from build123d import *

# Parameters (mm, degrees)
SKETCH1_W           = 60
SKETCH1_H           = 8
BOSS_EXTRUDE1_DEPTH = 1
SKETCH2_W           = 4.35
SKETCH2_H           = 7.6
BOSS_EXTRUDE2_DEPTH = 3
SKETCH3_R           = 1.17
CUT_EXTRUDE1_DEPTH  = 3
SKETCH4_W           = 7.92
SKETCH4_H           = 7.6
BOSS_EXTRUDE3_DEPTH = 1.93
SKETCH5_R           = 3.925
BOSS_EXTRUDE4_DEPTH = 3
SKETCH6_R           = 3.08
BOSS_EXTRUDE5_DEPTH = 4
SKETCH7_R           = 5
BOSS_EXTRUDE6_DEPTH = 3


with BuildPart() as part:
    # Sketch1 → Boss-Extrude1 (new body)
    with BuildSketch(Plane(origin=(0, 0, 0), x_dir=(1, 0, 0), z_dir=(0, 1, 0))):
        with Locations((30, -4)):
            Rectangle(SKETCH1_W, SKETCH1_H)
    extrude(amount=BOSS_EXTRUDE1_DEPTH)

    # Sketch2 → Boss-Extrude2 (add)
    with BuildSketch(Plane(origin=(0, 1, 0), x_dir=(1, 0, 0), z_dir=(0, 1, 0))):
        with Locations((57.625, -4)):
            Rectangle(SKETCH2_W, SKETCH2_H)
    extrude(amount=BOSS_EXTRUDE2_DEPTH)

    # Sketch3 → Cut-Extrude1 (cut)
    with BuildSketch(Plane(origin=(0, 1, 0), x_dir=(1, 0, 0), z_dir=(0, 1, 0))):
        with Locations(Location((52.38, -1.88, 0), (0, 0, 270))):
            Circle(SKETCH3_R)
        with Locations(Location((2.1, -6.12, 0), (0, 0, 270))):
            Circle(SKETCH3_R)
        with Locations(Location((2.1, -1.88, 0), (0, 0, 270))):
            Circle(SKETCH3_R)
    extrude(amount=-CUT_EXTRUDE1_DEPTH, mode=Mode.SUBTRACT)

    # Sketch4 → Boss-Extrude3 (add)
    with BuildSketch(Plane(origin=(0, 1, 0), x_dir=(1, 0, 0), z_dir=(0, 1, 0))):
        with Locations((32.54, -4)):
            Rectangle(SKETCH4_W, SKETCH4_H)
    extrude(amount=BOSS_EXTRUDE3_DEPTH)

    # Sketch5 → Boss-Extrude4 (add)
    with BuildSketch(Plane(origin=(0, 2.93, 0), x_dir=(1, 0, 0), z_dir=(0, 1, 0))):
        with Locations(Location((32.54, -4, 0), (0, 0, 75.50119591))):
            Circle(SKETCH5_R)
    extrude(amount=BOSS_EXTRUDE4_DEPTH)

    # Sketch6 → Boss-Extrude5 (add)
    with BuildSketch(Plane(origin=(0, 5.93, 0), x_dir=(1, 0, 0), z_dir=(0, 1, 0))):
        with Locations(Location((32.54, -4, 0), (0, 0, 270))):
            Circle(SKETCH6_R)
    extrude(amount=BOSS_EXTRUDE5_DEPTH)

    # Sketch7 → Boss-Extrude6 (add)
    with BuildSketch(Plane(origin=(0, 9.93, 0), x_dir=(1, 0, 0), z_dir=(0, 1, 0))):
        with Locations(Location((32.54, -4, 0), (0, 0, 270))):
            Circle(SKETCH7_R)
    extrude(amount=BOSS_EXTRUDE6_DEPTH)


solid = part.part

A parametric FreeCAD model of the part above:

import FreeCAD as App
import Part
import Sketcher

doc = App.newDocument("Part")
params = doc.addObject("Spreadsheet::Sheet", "Params")
for row, (alias, value) in enumerate([
    ("sketch1_width", "60 mm"),
    ("sketch1_height", "8 mm"),
    ("pad1_length", "1 mm"),
    ("sketch2_height", "7.6 mm"),
    ("sketch2_width", "4.35 mm"),
    ("pad2_length", "3 mm"),
    ("sketch3_diameter", "2.34 mm"),
    ("pocket1_length", "3 mm"),
    ("sketch4_height", "7.6 mm"),
    ("sketch4_width", "7.92 mm"),
    ("pad3_length", "1.93 mm"),
    ("sketch5_diameter", "7.85 mm"),
    ("pad4_length", "3 mm"),
    ("sketch6_diameter", "6.16 mm"),
    ("pad5_length", "4 mm"),
    ("sketch7_diameter", "10 mm"),
    ("pad6_length", "3 mm"),
], start=1):
    params.set(f"A{row}", alias)
    params.set(f"B{row}", "=" + value)
    params.setAlias(f"B{row}", alias)

body = doc.addObject("PartDesign::Body", "Body")

# Sketch on XZ plane
sketch1 = body.newObject("Sketcher::SketchObject", "Sketch")
sketch1.AttachmentSupport = (doc.getObject("XZ_Plane"), [""])
sketch1.MapMode = "FlatFace"
sketch1.addGeometry([
    Part.LineSegment(App.Vector(0, 0, 0), App.Vector(0, 8, 0)),
    Part.LineSegment(App.Vector(0, 8, 0), App.Vector(60, 8, 0)),
    Part.LineSegment(App.Vector(60, 8, 0), App.Vector(60, 0, 0)),
    Part.LineSegment(App.Vector(60, 0, 0), App.Vector(0, 0, 0)),
], False)
sketch1.addConstraint([
    Sketcher.Constraint("Coincident", 0, 2, 1, 1),
    Sketcher.Constraint("Coincident", 1, 2, 2, 1),
    Sketcher.Constraint("Coincident", 2, 2, 3, 1),
    Sketcher.Constraint("Coincident", 3, 2, 0, 1),
    Sketcher.Constraint("Vertical", 0),
    Sketcher.Constraint("Horizontal", 1),
    Sketcher.Constraint("Vertical", 2),
    Sketcher.Constraint("Horizontal", 3),
    Sketcher.Constraint("Coincident", 3, 2, -1, 1),
    Sketcher.Constraint("DistanceX", 1, 1, 1, 2, 60.0),
    Sketcher.Constraint("DistanceY", 0, 1, 0, 2, 8.0),
])
sketch1.setExpression("Constraints[9]", "Params.sketch1_width")
sketch1.setExpression("Constraints[10]", "Params.sketch1_height")
pad1 = body.newObject("PartDesign::Pad", "Pad")
pad1.Profile = sketch1
pad1.setExpression("Length", "Params.pad1_length")
pad1.Reversed = True

# Sketch on XZ plane
sketch2 = body.newObject("Sketcher::SketchObject", "Sketch001")
sketch2.AttachmentSupport = (doc.getObject("XZ_Plane"), [""])
sketch2.MapMode = "FlatFace"
sketch2.AttachmentOffset = App.Placement(App.Vector(0, 0, -1), App.Rotation())
sketch2.addGeometry([
    Part.LineSegment(App.Vector(55.5, 0.2, 0), App.Vector(55.5, 7.8, 0)),
    Part.LineSegment(App.Vector(55.5, 7.8, 0), App.Vector(59.8, 7.8, 0)),
    Part.LineSegment(App.Vector(59.8, 7.8, 0), App.Vector(59.8, 0.2, 0)),
    Part.LineSegment(App.Vector(59.8, 0.2, 0), App.Vector(55.5, 0.2, 0)),
], False)
sketch2.addConstraint([
    Sketcher.Constraint("Coincident", 0, 2, 1, 1),
    Sketcher.Constraint("Coincident", 1, 2, 2, 1),
    Sketcher.Constraint("Coincident", 2, 2, 3, 1),
    Sketcher.Constraint("Coincident", 3, 2, 0, 1),
    Sketcher.Constraint("Vertical", 0),
    Sketcher.Constraint("Horizontal", 1),
    Sketcher.Constraint("Vertical", 2),
    Sketcher.Constraint("Horizontal", 3),
    Sketcher.Constraint("DistanceY", 0, 1, 0, 2, 7.6),
    Sketcher.Constraint("DistanceX", 1, 1, 1, 2, 4.35),
    Sketcher.Constraint("DistanceY", -1, 1, 0, 2, 7.8),
    Sketcher.Constraint("DistanceX", -1, 1, 1, 2, 59.8),
])
sketch2.setExpression("Constraints[8]", "Params.sketch2_height")
sketch2.setExpression("Constraints[9]", "Params.sketch2_width")
pad2 = body.newObject("PartDesign::Pad", "Pad001")
pad2.Profile = sketch2
pad2.setExpression("Length", "Params.pad2_length")
pad2.Reversed = True

# Sketch on XZ plane
sketch3 = body.newObject("Sketcher::SketchObject", "Sketch002")
sketch3.AttachmentSupport = (doc.getObject("XZ_Plane"), [""])
sketch3.MapMode = "FlatFace"
sketch3.AttachmentOffset = App.Placement(App.Vector(0, 0, -1), App.Rotation())
sketch3.addGeometry([
    Part.Circle(App.Vector(52.4, 1.9, 0), App.Vector(0, 0, 1), 1.2),
    Part.Circle(App.Vector(2.1, 6.1, 0), App.Vector(0, 0, 1), 1.2),
    Part.Circle(App.Vector(2.1, 1.9, 0), App.Vector(0, 0, 1), 1.2),
], False)
sketch3.addConstraint([
    Sketcher.Constraint("Equal", 0, 1),
    Sketcher.Constraint("Equal", 1, 2),
    Sketcher.Constraint("Horizontal", 0, 3, 2, 3),
    Sketcher.Constraint("Vertical", 1, 3, 2, 3),
    Sketcher.Constraint("Diameter", 0, 2.34),
    Sketcher.Constraint("DistanceX", -1, 1, 1, 3, 2.1),
    Sketcher.Constraint("DistanceX", -1, 1, 0, 3, 52.38),
    Sketcher.Constraint("DistanceY", -1, 1, 0, 3, 1.88),
    Sketcher.Constraint("DistanceY", -1, 1, 1, 3, 6.12),
])
sketch3.setExpression("Constraints[4]", "Params.sketch3_diameter")
pocket1 = body.newObject("PartDesign::Pocket", "Pocket")
pocket1.Profile = sketch3
pocket1.setExpression("Length", "Params.pocket1_length")
pocket1.Reversed = True

# Sketch on XZ plane
sketch4 = body.newObject("Sketcher::SketchObject", "Sketch003")
sketch4.AttachmentSupport = (doc.getObject("XZ_Plane"), [""])
sketch4.MapMode = "FlatFace"
sketch4.AttachmentOffset = App.Placement(App.Vector(0, 0, -1), App.Rotation())
sketch4.addGeometry([
    Part.LineSegment(App.Vector(29, 0, 0), App.Vector(29, 8, 0)),
    Part.LineSegment(App.Vector(29, 8, 0), App.Vector(36, 8, 0)),
    Part.LineSegment(App.Vector(36, 8, 0), App.Vector(36, 0, 0)),
    Part.LineSegment(App.Vector(36, 0, 0), App.Vector(29, 0, 0)),
], False)
sketch4.addConstraint([
    Sketcher.Constraint("Coincident", 0, 2, 1, 1),
    Sketcher.Constraint("Coincident", 1, 2, 2, 1),
    Sketcher.Constraint("Coincident", 2, 2, 3, 1),
    Sketcher.Constraint("Coincident", 3, 2, 0, 1),
    Sketcher.Constraint("Vertical", 0),
    Sketcher.Constraint("Horizontal", 1),
    Sketcher.Constraint("Vertical", 2),
    Sketcher.Constraint("Horizontal", 3),
    Sketcher.Constraint("DistanceY", 0, 1, 0, 2, 7.6),
    Sketcher.Constraint("DistanceX", 1, 1, 1, 2, 7.92),
    Sketcher.Constraint("DistanceY", -1, 1, 0, 2, 7.8),
    Sketcher.Constraint("DistanceX", -1, 1, 1, 2, 36.5),
])
sketch4.setExpression("Constraints[8]", "Params.sketch4_height")
sketch4.setExpression("Constraints[9]", "Params.sketch4_width")
pad3 = body.newObject("PartDesign::Pad", "Pad002")
pad3.Profile = sketch4
pad3.setExpression("Length", "Params.pad3_length")
pad3.Reversed = True

# Sketch on XZ plane
sketch5 = body.newObject("Sketcher::SketchObject", "Sketch004")
sketch5.AttachmentSupport = (doc.getObject("XZ_Plane"), [""])
sketch5.MapMode = "FlatFace"
sketch5.AttachmentOffset = App.Placement(App.Vector(0, 0, -2.93), App.Rotation())
sketch5.addGeometry(Part.Circle(App.Vector(32.5, 4, 0), App.Vector(0, 0, 1), 3.9), False)
sketch5.addConstraint([
    Sketcher.Constraint("Diameter", 0, 7.85),
    Sketcher.Constraint("DistanceY", -1, 1, 0, 3, 4.0),
    Sketcher.Constraint("DistanceX", -1, 1, 0, 3, 32.54),
])
sketch5.setExpression("Constraints[0]", "Params.sketch5_diameter")
pad4 = body.newObject("PartDesign::Pad", "Pad003")
pad4.Profile = sketch5
pad4.setExpression("Length", "Params.pad4_length")
pad4.Reversed = True

# Sketch on XZ plane
sketch6 = body.newObject("Sketcher::SketchObject", "Sketch005")
sketch6.AttachmentSupport = (doc.getObject("XZ_Plane"), [""])
sketch6.MapMode = "FlatFace"
sketch6.AttachmentOffset = App.Placement(App.Vector(0, 0, -5.93), App.Rotation())
sketch6.addGeometry(Part.Circle(App.Vector(32.5, 4, 0), App.Vector(0, 0, 1), 3.1), False)
sketch6.addConstraint([
    Sketcher.Constraint("Diameter", 0, 6.16),
    Sketcher.Constraint("DistanceY", -1, 1, 0, 3, 4.0),
    Sketcher.Constraint("DistanceX", -1, 1, 0, 3, 32.54),
])
sketch6.setExpression("Constraints[0]", "Params.sketch6_diameter")
pad5 = body.newObject("PartDesign::Pad", "Pad004")
pad5.Profile = sketch6
pad5.setExpression("Length", "Params.pad5_length")
pad5.Reversed = True

# Sketch on XZ plane
sketch7 = body.newObject("Sketcher::SketchObject", "Sketch006")
sketch7.AttachmentSupport = (doc.getObject("XZ_Plane"), [""])
sketch7.MapMode = "FlatFace"
sketch7.AttachmentOffset = App.Placement(App.Vector(0, 0, -9.93), App.Rotation())
sketch7.addGeometry(Part.Circle(App.Vector(33, 4, 0), App.Vector(0, 0, 1), 5), False)
sketch7.addConstraint([
    Sketcher.Constraint("Diameter", 0, 10.0),
    Sketcher.Constraint("DistanceY", -1, 1, 0, 3, 4.0),
    Sketcher.Constraint("DistanceX", -1, 1, 0, 3, 32.54),
])
sketch7.setExpression("Constraints[0]", "Params.sketch7_diameter")
pad6 = body.newObject("PartDesign::Pad", "Pad005")
pad6.Profile = sketch7
pad6.setExpression("Length", "Params.pad6_length")
pad6.Reversed = True

doc.recompute()
